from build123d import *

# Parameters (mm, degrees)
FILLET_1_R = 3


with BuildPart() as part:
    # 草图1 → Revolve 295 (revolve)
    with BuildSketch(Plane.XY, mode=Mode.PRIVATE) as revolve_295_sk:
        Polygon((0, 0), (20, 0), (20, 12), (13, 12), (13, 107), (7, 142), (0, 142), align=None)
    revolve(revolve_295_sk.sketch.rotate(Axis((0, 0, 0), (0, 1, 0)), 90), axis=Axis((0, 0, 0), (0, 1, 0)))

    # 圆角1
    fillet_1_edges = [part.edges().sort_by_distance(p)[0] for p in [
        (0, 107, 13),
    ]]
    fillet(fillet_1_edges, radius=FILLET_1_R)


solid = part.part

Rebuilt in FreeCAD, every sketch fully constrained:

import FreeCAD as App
import Part
import Sketcher


def edges_at(feature, points):
    """Names of the edges that pass closest to the given points."""
    edges = feature.Shape.Edges
    near = lambda p: min(range(len(edges)), key=lambda i: edges[i].distToShape(Part.Vertex(*p))[0])
    return sorted({f"Edge{near(p) + 1}" for p in points})


def add_polygon(sketch, points):
    """Adds a closed chain of lines whose ends are joined by coincident constraints."""
    first, n = sketch.GeometryCount, len(points)
    for a, b in zip(points, points[1:] + points[:1]):
        sketch.addGeometry(Part.LineSegment(App.Vector(*a, 0), App.Vector(*b, 0)), False)
    for i in range(n):
        sketch.addConstraint(Sketcher.Constraint("Coincident", first + i, 2, first + (i + 1) % n, 1))

doc = App.newDocument("Part")
body = doc.addObject("PartDesign::Body", "Body")

sketch1 = body.newObject("Sketcher::SketchObject", "Sketch")
sketch1.AttachmentSupport = (doc.getObject("XY_Plane"), [""])
sketch1.MapMode = "FlatFace"
add_polygon(sketch1, [(0, 0), (20, 0), (20, 12), (13, 12), (13, 107), (7, 142), (0, 142)])
sketch1.addConstraint([
    Sketcher.Constraint("Horizontal", 0),
    Sketcher.Constraint("Vertical", 1),
    Sketcher.Constraint("Horizontal", 2),
    Sketcher.Constraint("Vertical", 3),
    Sketcher.Constraint("Horizontal", 5),
    Sketcher.Constraint("Vertical", 6),
    Sketcher.Constraint("Coincident", 6, 2, -1, 1),
    Sketcher.Constraint("Equal", 2, 5),
    Sketcher.Constraint("DistanceX", 0, 1, 0, 2, 20.0),
    Sketcher.Constraint("DistanceX", 2, 2, 2, 1, 7.0),
    Sketcher.Constraint("DistanceY", 1, 1, 1, 2, 12.0),
    Sketcher.Constraint("DistanceY", 3, 1, 3, 2, 95.0),
    Sketcher.Constraint("DistanceY", 6, 2, 6, 1, 142.0),
])
revolution = body.newObject("PartDesign::Revolution", "Revolution")
revolution.Profile = sketch1
revolution.ReferenceAxis = (sketch1, ["V_Axis"])
revolution.Angle = 360
doc.recompute()

fillet = body.newObject("PartDesign::Fillet", "Fillet")
fillet.Base = (revolution, edges_at(revolution, [(0, 107, 13)]))
fillet.Radius = 3

doc.recompute()
